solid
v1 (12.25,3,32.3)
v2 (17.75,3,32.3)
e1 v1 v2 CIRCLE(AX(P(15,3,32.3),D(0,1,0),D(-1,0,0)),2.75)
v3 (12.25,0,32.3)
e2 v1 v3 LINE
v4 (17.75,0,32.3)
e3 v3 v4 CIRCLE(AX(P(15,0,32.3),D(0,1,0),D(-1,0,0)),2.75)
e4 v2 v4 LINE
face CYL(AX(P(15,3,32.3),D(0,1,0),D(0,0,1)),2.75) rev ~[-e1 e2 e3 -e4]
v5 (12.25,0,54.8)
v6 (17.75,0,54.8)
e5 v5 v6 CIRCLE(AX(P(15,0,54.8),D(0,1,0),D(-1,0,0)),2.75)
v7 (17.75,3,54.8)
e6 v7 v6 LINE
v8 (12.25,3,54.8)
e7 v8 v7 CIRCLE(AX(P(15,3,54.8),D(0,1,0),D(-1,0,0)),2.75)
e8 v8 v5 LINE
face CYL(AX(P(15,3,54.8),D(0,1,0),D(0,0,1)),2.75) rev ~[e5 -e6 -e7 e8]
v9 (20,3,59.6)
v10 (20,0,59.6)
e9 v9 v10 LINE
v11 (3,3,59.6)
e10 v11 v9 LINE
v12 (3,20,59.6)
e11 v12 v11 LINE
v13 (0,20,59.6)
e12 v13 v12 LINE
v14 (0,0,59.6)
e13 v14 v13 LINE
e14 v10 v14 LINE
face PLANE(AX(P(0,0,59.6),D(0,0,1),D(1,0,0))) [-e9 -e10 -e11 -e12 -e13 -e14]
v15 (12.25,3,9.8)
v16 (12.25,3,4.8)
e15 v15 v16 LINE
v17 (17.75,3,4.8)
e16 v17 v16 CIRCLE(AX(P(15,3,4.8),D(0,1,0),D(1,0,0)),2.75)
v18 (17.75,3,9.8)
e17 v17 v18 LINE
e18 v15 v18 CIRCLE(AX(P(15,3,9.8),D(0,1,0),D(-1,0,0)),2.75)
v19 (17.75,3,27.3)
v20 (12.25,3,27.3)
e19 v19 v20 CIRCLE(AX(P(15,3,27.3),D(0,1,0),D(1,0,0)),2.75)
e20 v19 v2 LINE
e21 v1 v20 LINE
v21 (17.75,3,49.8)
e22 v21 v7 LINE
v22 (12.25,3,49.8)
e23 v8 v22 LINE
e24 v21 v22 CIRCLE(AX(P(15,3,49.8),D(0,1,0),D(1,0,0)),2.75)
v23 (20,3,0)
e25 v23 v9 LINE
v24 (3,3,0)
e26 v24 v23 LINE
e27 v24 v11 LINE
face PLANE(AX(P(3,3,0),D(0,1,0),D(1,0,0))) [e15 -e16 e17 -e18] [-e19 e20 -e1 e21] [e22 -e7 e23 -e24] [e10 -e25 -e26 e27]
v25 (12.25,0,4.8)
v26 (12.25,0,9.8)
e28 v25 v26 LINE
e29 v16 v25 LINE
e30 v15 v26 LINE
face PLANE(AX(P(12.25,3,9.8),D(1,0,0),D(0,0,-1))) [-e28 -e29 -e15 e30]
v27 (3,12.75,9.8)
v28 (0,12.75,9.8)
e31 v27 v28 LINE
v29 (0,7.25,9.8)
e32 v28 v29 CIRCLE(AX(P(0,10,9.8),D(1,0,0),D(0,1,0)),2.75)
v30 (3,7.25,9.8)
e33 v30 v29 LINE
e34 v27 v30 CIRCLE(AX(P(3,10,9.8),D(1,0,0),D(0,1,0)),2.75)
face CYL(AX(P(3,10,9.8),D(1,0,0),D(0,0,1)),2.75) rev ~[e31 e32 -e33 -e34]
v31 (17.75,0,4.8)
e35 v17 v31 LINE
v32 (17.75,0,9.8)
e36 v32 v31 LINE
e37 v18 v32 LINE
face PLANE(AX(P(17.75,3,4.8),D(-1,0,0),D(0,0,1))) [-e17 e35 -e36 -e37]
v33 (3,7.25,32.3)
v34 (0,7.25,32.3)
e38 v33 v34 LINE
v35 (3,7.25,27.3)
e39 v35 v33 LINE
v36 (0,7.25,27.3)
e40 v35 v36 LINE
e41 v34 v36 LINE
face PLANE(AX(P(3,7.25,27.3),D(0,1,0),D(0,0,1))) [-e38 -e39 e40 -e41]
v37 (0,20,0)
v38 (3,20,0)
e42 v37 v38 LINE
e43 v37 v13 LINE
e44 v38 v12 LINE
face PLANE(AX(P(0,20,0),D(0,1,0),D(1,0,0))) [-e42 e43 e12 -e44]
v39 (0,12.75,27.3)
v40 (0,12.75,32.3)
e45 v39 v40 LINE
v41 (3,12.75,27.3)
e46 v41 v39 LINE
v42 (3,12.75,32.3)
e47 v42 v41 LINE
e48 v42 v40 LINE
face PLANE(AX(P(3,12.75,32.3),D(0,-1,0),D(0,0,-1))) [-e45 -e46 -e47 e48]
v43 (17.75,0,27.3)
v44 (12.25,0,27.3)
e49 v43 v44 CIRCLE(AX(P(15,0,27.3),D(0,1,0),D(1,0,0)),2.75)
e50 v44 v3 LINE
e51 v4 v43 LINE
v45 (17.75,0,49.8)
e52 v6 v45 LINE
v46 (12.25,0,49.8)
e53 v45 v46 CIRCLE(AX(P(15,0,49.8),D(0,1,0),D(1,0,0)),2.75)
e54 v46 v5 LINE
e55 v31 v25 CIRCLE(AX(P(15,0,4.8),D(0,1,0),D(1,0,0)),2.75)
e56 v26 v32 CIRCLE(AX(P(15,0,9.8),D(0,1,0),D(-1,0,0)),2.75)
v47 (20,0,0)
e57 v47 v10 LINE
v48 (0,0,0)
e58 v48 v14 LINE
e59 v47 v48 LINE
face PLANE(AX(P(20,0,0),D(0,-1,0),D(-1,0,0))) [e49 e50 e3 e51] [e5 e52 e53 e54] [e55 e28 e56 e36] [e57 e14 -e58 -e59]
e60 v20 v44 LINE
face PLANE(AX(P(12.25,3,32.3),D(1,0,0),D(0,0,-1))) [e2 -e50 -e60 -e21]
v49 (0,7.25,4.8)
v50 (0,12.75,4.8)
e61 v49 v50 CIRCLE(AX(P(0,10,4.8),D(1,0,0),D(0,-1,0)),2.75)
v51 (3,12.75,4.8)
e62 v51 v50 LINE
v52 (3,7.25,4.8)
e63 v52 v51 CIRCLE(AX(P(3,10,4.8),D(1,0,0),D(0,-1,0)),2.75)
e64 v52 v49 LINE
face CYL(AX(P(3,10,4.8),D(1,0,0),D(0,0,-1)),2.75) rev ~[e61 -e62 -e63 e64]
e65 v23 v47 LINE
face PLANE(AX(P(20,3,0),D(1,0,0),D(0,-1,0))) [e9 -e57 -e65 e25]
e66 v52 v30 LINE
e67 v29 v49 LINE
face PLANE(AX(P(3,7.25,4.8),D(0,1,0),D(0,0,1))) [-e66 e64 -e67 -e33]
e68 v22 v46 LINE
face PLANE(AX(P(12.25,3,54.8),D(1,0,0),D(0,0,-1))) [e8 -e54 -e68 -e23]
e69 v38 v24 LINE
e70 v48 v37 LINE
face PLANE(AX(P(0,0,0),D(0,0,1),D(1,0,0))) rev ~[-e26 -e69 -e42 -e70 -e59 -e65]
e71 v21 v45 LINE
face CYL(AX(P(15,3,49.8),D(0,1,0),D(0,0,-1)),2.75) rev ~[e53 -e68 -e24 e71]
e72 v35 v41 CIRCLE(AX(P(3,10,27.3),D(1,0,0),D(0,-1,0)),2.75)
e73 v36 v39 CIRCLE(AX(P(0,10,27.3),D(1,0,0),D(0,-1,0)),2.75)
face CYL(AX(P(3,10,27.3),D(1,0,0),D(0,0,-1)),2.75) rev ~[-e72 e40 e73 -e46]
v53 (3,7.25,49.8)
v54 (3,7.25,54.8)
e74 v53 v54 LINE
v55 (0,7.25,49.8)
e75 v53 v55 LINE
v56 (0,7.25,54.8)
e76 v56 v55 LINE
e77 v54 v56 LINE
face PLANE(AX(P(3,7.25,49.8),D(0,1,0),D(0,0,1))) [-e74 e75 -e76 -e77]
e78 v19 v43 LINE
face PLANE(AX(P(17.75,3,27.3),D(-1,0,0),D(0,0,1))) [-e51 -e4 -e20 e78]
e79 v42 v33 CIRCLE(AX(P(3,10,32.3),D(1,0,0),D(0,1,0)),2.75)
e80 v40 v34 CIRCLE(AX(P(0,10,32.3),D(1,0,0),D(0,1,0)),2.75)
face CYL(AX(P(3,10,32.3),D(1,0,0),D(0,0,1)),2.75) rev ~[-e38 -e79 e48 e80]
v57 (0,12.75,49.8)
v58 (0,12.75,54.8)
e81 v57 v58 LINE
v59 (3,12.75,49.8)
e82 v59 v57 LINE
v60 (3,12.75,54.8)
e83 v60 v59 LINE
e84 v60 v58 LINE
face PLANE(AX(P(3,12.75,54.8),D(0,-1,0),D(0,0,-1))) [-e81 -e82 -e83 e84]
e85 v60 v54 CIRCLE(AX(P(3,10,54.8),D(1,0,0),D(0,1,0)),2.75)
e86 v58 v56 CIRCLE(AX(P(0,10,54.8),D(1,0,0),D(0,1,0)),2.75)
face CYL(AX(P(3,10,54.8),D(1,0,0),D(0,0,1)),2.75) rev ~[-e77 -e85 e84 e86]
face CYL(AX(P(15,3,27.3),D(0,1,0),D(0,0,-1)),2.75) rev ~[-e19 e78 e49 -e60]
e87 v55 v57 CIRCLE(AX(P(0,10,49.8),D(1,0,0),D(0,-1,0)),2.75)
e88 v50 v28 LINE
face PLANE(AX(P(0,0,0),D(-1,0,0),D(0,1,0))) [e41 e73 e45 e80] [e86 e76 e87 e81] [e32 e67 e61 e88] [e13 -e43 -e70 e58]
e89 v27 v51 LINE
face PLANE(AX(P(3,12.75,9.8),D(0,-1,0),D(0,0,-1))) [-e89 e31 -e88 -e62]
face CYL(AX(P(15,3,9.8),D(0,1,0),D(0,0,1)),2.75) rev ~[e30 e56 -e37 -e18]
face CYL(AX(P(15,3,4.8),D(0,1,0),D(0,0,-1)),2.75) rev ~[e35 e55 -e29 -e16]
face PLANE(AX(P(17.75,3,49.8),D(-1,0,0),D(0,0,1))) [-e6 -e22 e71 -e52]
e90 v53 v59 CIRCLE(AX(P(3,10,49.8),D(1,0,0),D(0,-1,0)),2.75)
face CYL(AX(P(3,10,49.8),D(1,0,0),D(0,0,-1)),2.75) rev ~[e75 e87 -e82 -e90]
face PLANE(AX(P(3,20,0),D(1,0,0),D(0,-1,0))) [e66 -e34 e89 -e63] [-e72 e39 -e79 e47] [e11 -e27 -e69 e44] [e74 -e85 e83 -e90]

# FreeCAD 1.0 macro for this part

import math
import FreeCAD as App
import Part
import Sketcher

V = App.Vector
Q = App.Units.Quantity

doc = App.newDocument("Part")
body = doc.addObject("PartDesign::Body", "Body")

# Sketch on XY plane
sketch1 = doc.addObject("Sketcher::SketchObject", "Sketch")
body.addObject(sketch1)
sketch1.AttachmentSupport = (doc.XY_Plane, [""])
sketch1.MapMode = "FlatFace"
sketch1.addGeometry([
    Part.LineSegment(V(0, 20, 0), V(0, 0, 0)),  # 0
    Part.LineSegment(V(0, 0, 0), V(20, 0, 0)),  # 1
    Part.LineSegment(V(20, 0, 0), V(20, 3, 0)),  # 2
    Part.LineSegment(V(20, 3, 0), V(3, 3, 0)),  # 3
    Part.LineSegment(V(3, 3, 0), V(3, 20, 0)),  # 4
    Part.LineSegment(V(3, 20, 0), V(0, 20, 0)),  # 5
], False)
sketch1.addConstraint([
    Sketcher.Constraint("Coincident", 0, 2, 1, 1),
    Sketcher.Constraint("Coincident", 1, 2, 2, 1),
    Sketcher.Constraint("Coincident", 2, 2, 3, 1),
    Sketcher.Constraint("Coincident", 3, 2, 4, 1),
    Sketcher.Constraint("Coincident", 4, 2, 5, 1),
    Sketcher.Constraint("Coincident", 5, 2, 0, 1),
    Sketcher.Constraint("Vertical", 0),
    Sketcher.Constraint("Horizontal", 1),
    Sketcher.Constraint("Vertical", 2),
    Sketcher.Constraint("Horizontal", 3),
    Sketcher.Constraint("Vertical", 4),
    Sketcher.Constraint("Horizontal", 5),
    Sketcher.Constraint("Coincident", 0, 2, -1, 1),
    Sketcher.Constraint("Equal", 1, 0),
    Sketcher.Constraint("Equal", 5, 2),
    Sketcher.Constraint("DistanceX", 1, 1, 1, 2, Q("20 mm")),
    Sketcher.Constraint("DistanceX", 3, 2, 3, 1, Q("17 mm")),
])
pad1 = doc.addObject("PartDesign::Pad", "Pad")
body.addObject(pad1)
pad1.Profile = sketch1
pad1.Length = 59.6

# Sketch on XZ plane
sketch2 = doc.addObject("Sketcher::SketchObject", "Sketch001")
body.addObject(sketch2)
sketch2.AttachmentSupport = (doc.XZ_Plane, [""])
sketch2.MapMode = "FlatFace"
sketch2.AttachmentOffset = App.Placement(V(0, 0, -3), App.Rotation())
sketch2.addGeometry([
    Part.LineSegment(V(12.25, 4.8, 0), V(12.25, 9.8, 0)),
    Part.ArcOfCircle(Part.Circle(V(15, 9.8, 0), V(0, 0, 1), 2.75), math.radians(0), math.radians(180)),
    Part.LineSegment(V(17.75, 9.8, 0), V(17.75, 4.8, 0)),
    Part.ArcOfCircle(Part.Circle(V(15, 4.8, 0), V(0, 0, 1), 2.75), math.radians(180), math.radians(360)),
], False)
sketch2.addConstraint([
    Sketcher.Constraint("Tangent", 0, 2, 1, 2),
    Sketcher.Constraint("Tangent", 1, 1, 2, 1),
    Sketcher.Constraint("Tangent", 2, 2, 3, 2),
    Sketcher.Constraint("Tangent", 3, 1, 0, 1),
    Sketcher.Constraint("Vertical", 0),
    Sketcher.Constraint("Vertical", 2),
    Sketcher.Constraint("DistanceY", 0, 1, 0, 2, Q("5 mm")),
    Sketcher.Constraint("Radius", 1, Q("2.75 mm")),
    Sketcher.Constraint("DistanceX", -1, 1, 1, 3, Q("15 mm")),
    Sketcher.Constraint("DistanceY", -1, 1, 1, 3, Q("9.8 mm")),
])
pocket1 = doc.addObject("PartDesign::Pocket", "Pocket")
body.addObject(pocket1)
pocket1.Profile = sketch2
pocket1.Type = "ThroughAll"
pocket1.Reversed = True

# Sketch on YZ plane
sketch3 = doc.addObject("Sketcher::SketchObject", "Sketch002")
body.addObject(sketch3)
sketch3.AttachmentSupport = (doc.YZ_Plane, [""])
sketch3.MapMode = "FlatFace"
sketch3.AttachmentOffset = App.Placement(V(0, 0, 3), App.Rotation())
sketch3.addGeometry([
    Part.LineSegment(V(12.75, 4.8, 0), V(12.75, 9.8, 0)),
    Part.ArcOfCircle(Part.Circle(V(10, 9.8, 0), V(0, 0, 1), 2.75), math.radians(0), math.radians(180)),
    Part.LineSegment(V(7.25, 9.8, 0), V(7.25, 4.8, 0)),
    Part.ArcOfCircle(Part.Circle(V(10, 4.8, 0), V(0, 0, 1), 2.75), math.radians(180), math.radians(360)),
], False)
sketch3.addConstraint([
    Sketcher.Constraint("Tangent", 0, 2, 1, 1),
    Sketcher.Constraint("Tangent", 1, 2, 2, 1),
    Sketcher.Constraint("Tangent", 2, 2, 3, 1),
    Sketcher.Constraint("Tangent", 3, 2, 0, 1),
    Sketcher.Constraint("Vertical", 0),
    Sketcher.Constraint("Vertical", 2),
    Sketcher.Constraint("Radius", 1, Q("2.75 mm")),
    Sketcher.Constraint("DistanceX", -1, 1, 1, 3, Q("10 mm")),
    Sketcher.Constraint("DistanceY", 0, 1, 0, 2, Q("5 mm")),
    Sketcher.Constraint("DistanceY", -1, 1, 1, 3, Q("9.8 mm")),
])
pocket2 = doc.addObject("PartDesign::Pocket", "Pocket001")
body.addObject(pocket2)
pocket2.Profile = sketch3
pocket2.Type = "ThroughAll"
doc.recompute()

linearpattern = doc.addObject("PartDesign::LinearPattern", "LinearPattern")
body.addObject(linearpattern)
linearpattern.Originals = [pocket1, pocket2]
linearpattern.Direction = (doc.Z_Axis, [""])
linearpattern.Mode = "offset"
linearpattern.Offset = 22.5
linearpattern.Occurrences = 3
body.Tip = linearpattern

doc.recompute()
